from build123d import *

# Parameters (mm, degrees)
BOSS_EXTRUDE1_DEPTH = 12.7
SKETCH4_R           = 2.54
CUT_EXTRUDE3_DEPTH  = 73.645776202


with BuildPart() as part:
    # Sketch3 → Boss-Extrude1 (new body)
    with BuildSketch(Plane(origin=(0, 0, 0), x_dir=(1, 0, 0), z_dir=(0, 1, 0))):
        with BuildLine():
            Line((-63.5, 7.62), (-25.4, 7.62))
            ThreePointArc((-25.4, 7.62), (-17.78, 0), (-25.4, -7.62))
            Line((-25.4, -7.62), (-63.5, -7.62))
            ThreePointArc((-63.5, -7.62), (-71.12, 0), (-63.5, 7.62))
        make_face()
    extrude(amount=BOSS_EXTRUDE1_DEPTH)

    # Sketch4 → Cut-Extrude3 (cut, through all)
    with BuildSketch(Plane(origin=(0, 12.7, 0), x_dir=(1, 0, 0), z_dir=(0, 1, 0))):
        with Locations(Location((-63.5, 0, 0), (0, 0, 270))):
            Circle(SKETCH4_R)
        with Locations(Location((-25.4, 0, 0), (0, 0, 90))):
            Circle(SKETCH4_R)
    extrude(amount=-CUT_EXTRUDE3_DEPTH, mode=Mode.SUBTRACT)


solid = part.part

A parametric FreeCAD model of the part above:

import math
import FreeCAD as App
import Part
import Sketcher
Q = App.Units.Quantity

doc = App.newDocument("Part")
params = doc.addObject("Spreadsheet::Sheet", "Params")
for row, (alias, value) in enumerate([
    ("sketch1_radius", "0.3 in"),
    ("sketch1_width", "1.5 in"),
    ("pad1_length", "0.5 in"),
    ("sketch2_diameter", "0.2 in"),
], start=1):
    params.set(f"A{row}", alias)
    params.set(f"B{row}", "=" + value)
    params.setAlias(f"B{row}", alias)

body = doc.addObject("PartDesign::Body", "Body")

# Sketch on XZ plane
sketch1 = body.newObject("Sketcher::SketchObject", "Sketch")
sketch1.AttachmentSupport = (doc.getObject("XZ_Plane"), [""])
sketch1.MapMode = "FlatFace"
sketch1.addGeometry([
    Part.LineSegment(App.Vector(-25, -8, 0), App.Vector(-64, -8, 0)),
    Part.ArcOfCircle(Part.Circle(App.Vector(-64, 0, 0), App.Vector(0, 0, 1), 8), math.radians(90), math.radians(270)),
    Part.LineSegment(App.Vector(-64, 8, 0), App.Vector(-25, 8, 0)),
    Part.ArcOfCircle(Part.Circle(App.Vector(-25, 0, 0), App.Vector(0, 0, 1), 8), math.radians(-90), math.radians(90)),
], False)
sketch1.addConstraint([
    Sketcher.Constraint("Tangent", 0, 2, 1, 2),
    Sketcher.Constraint("Tangent", 1, 1, 2, 1),
    Sketcher.Constraint("Tangent", 2, 2, 3, 2),
    Sketcher.Constraint("Tangent", 3, 1, 0, 1),
    Sketcher.Constraint("Horizontal", 0),
    Sketcher.Constraint("Horizontal", 2),
    Sketcher.Constraint("PointOnObject", 1, 3, -1),
    Sketcher.Constraint("Radius", 1, Q("0.3 in")),
    Sketcher.Constraint("DistanceX", 0, 2, 0, 1, Q("1.5 in")),
    Sketcher.Constraint("DistanceX", 3, 3, -1, 1, Q("1 in")),
])
sketch1.setExpression("Constraints[7]", "Params.sketch1_radius")
sketch1.setExpression("Constraints[8]", "Params.sketch1_width")
pad1 = body.newObject("PartDesign::Pad", "Pad")
pad1.Profile = sketch1
pad1.setExpression("Length", "Params.pad1_length")
pad1.Reversed = True

# Sketch on XZ plane
sketch2 = body.newObject("Sketcher::SketchObject", "Sketch001")
sketch2.AttachmentSupport = (doc.getObject("XZ_Plane"), [""])
sketch2.MapMode = "FlatFace"
sketch2.AttachmentOffset = App.Placement(App.Vector(0, 0, -0.5 * 25.4), App.Rotation())
sketch2.addGeometry([
    Part.Circle(App.Vector(-63.5, 0, 0), App.Vector(0, 0, 1), 2.5),
    Part.Circle(App.Vector(-25.4, 0, 0), App.Vector(0, 0, 1), 2.5),
], False)
sketch2.addConstraint([
    Sketcher.Constraint("Equal", 0, 1),
    Sketcher.Constraint("PointOnObject", 0, 3, -1),
    Sketcher.Constraint("PointOnObject", 1, 3, -1),
    Sketcher.Constraint("Diameter", 0, Q("0.2 in")),
    Sketcher.Constraint("DistanceX", 1, 3, -1, 1, Q("1 in")),
    Sketcher.Constraint("DistanceX", 0, 3, -1, 1, Q("2.5 in")),
])
sketch2.setExpression("Constraints[3]", "Params.sketch2_diameter")
pocket1 = body.newObject("PartDesign::Pocket", "Pocket")
pocket1.Profile = sketch2
pocket1.Type = "ThroughAll"
pocket1.Reversed = True

doc.recompute()
